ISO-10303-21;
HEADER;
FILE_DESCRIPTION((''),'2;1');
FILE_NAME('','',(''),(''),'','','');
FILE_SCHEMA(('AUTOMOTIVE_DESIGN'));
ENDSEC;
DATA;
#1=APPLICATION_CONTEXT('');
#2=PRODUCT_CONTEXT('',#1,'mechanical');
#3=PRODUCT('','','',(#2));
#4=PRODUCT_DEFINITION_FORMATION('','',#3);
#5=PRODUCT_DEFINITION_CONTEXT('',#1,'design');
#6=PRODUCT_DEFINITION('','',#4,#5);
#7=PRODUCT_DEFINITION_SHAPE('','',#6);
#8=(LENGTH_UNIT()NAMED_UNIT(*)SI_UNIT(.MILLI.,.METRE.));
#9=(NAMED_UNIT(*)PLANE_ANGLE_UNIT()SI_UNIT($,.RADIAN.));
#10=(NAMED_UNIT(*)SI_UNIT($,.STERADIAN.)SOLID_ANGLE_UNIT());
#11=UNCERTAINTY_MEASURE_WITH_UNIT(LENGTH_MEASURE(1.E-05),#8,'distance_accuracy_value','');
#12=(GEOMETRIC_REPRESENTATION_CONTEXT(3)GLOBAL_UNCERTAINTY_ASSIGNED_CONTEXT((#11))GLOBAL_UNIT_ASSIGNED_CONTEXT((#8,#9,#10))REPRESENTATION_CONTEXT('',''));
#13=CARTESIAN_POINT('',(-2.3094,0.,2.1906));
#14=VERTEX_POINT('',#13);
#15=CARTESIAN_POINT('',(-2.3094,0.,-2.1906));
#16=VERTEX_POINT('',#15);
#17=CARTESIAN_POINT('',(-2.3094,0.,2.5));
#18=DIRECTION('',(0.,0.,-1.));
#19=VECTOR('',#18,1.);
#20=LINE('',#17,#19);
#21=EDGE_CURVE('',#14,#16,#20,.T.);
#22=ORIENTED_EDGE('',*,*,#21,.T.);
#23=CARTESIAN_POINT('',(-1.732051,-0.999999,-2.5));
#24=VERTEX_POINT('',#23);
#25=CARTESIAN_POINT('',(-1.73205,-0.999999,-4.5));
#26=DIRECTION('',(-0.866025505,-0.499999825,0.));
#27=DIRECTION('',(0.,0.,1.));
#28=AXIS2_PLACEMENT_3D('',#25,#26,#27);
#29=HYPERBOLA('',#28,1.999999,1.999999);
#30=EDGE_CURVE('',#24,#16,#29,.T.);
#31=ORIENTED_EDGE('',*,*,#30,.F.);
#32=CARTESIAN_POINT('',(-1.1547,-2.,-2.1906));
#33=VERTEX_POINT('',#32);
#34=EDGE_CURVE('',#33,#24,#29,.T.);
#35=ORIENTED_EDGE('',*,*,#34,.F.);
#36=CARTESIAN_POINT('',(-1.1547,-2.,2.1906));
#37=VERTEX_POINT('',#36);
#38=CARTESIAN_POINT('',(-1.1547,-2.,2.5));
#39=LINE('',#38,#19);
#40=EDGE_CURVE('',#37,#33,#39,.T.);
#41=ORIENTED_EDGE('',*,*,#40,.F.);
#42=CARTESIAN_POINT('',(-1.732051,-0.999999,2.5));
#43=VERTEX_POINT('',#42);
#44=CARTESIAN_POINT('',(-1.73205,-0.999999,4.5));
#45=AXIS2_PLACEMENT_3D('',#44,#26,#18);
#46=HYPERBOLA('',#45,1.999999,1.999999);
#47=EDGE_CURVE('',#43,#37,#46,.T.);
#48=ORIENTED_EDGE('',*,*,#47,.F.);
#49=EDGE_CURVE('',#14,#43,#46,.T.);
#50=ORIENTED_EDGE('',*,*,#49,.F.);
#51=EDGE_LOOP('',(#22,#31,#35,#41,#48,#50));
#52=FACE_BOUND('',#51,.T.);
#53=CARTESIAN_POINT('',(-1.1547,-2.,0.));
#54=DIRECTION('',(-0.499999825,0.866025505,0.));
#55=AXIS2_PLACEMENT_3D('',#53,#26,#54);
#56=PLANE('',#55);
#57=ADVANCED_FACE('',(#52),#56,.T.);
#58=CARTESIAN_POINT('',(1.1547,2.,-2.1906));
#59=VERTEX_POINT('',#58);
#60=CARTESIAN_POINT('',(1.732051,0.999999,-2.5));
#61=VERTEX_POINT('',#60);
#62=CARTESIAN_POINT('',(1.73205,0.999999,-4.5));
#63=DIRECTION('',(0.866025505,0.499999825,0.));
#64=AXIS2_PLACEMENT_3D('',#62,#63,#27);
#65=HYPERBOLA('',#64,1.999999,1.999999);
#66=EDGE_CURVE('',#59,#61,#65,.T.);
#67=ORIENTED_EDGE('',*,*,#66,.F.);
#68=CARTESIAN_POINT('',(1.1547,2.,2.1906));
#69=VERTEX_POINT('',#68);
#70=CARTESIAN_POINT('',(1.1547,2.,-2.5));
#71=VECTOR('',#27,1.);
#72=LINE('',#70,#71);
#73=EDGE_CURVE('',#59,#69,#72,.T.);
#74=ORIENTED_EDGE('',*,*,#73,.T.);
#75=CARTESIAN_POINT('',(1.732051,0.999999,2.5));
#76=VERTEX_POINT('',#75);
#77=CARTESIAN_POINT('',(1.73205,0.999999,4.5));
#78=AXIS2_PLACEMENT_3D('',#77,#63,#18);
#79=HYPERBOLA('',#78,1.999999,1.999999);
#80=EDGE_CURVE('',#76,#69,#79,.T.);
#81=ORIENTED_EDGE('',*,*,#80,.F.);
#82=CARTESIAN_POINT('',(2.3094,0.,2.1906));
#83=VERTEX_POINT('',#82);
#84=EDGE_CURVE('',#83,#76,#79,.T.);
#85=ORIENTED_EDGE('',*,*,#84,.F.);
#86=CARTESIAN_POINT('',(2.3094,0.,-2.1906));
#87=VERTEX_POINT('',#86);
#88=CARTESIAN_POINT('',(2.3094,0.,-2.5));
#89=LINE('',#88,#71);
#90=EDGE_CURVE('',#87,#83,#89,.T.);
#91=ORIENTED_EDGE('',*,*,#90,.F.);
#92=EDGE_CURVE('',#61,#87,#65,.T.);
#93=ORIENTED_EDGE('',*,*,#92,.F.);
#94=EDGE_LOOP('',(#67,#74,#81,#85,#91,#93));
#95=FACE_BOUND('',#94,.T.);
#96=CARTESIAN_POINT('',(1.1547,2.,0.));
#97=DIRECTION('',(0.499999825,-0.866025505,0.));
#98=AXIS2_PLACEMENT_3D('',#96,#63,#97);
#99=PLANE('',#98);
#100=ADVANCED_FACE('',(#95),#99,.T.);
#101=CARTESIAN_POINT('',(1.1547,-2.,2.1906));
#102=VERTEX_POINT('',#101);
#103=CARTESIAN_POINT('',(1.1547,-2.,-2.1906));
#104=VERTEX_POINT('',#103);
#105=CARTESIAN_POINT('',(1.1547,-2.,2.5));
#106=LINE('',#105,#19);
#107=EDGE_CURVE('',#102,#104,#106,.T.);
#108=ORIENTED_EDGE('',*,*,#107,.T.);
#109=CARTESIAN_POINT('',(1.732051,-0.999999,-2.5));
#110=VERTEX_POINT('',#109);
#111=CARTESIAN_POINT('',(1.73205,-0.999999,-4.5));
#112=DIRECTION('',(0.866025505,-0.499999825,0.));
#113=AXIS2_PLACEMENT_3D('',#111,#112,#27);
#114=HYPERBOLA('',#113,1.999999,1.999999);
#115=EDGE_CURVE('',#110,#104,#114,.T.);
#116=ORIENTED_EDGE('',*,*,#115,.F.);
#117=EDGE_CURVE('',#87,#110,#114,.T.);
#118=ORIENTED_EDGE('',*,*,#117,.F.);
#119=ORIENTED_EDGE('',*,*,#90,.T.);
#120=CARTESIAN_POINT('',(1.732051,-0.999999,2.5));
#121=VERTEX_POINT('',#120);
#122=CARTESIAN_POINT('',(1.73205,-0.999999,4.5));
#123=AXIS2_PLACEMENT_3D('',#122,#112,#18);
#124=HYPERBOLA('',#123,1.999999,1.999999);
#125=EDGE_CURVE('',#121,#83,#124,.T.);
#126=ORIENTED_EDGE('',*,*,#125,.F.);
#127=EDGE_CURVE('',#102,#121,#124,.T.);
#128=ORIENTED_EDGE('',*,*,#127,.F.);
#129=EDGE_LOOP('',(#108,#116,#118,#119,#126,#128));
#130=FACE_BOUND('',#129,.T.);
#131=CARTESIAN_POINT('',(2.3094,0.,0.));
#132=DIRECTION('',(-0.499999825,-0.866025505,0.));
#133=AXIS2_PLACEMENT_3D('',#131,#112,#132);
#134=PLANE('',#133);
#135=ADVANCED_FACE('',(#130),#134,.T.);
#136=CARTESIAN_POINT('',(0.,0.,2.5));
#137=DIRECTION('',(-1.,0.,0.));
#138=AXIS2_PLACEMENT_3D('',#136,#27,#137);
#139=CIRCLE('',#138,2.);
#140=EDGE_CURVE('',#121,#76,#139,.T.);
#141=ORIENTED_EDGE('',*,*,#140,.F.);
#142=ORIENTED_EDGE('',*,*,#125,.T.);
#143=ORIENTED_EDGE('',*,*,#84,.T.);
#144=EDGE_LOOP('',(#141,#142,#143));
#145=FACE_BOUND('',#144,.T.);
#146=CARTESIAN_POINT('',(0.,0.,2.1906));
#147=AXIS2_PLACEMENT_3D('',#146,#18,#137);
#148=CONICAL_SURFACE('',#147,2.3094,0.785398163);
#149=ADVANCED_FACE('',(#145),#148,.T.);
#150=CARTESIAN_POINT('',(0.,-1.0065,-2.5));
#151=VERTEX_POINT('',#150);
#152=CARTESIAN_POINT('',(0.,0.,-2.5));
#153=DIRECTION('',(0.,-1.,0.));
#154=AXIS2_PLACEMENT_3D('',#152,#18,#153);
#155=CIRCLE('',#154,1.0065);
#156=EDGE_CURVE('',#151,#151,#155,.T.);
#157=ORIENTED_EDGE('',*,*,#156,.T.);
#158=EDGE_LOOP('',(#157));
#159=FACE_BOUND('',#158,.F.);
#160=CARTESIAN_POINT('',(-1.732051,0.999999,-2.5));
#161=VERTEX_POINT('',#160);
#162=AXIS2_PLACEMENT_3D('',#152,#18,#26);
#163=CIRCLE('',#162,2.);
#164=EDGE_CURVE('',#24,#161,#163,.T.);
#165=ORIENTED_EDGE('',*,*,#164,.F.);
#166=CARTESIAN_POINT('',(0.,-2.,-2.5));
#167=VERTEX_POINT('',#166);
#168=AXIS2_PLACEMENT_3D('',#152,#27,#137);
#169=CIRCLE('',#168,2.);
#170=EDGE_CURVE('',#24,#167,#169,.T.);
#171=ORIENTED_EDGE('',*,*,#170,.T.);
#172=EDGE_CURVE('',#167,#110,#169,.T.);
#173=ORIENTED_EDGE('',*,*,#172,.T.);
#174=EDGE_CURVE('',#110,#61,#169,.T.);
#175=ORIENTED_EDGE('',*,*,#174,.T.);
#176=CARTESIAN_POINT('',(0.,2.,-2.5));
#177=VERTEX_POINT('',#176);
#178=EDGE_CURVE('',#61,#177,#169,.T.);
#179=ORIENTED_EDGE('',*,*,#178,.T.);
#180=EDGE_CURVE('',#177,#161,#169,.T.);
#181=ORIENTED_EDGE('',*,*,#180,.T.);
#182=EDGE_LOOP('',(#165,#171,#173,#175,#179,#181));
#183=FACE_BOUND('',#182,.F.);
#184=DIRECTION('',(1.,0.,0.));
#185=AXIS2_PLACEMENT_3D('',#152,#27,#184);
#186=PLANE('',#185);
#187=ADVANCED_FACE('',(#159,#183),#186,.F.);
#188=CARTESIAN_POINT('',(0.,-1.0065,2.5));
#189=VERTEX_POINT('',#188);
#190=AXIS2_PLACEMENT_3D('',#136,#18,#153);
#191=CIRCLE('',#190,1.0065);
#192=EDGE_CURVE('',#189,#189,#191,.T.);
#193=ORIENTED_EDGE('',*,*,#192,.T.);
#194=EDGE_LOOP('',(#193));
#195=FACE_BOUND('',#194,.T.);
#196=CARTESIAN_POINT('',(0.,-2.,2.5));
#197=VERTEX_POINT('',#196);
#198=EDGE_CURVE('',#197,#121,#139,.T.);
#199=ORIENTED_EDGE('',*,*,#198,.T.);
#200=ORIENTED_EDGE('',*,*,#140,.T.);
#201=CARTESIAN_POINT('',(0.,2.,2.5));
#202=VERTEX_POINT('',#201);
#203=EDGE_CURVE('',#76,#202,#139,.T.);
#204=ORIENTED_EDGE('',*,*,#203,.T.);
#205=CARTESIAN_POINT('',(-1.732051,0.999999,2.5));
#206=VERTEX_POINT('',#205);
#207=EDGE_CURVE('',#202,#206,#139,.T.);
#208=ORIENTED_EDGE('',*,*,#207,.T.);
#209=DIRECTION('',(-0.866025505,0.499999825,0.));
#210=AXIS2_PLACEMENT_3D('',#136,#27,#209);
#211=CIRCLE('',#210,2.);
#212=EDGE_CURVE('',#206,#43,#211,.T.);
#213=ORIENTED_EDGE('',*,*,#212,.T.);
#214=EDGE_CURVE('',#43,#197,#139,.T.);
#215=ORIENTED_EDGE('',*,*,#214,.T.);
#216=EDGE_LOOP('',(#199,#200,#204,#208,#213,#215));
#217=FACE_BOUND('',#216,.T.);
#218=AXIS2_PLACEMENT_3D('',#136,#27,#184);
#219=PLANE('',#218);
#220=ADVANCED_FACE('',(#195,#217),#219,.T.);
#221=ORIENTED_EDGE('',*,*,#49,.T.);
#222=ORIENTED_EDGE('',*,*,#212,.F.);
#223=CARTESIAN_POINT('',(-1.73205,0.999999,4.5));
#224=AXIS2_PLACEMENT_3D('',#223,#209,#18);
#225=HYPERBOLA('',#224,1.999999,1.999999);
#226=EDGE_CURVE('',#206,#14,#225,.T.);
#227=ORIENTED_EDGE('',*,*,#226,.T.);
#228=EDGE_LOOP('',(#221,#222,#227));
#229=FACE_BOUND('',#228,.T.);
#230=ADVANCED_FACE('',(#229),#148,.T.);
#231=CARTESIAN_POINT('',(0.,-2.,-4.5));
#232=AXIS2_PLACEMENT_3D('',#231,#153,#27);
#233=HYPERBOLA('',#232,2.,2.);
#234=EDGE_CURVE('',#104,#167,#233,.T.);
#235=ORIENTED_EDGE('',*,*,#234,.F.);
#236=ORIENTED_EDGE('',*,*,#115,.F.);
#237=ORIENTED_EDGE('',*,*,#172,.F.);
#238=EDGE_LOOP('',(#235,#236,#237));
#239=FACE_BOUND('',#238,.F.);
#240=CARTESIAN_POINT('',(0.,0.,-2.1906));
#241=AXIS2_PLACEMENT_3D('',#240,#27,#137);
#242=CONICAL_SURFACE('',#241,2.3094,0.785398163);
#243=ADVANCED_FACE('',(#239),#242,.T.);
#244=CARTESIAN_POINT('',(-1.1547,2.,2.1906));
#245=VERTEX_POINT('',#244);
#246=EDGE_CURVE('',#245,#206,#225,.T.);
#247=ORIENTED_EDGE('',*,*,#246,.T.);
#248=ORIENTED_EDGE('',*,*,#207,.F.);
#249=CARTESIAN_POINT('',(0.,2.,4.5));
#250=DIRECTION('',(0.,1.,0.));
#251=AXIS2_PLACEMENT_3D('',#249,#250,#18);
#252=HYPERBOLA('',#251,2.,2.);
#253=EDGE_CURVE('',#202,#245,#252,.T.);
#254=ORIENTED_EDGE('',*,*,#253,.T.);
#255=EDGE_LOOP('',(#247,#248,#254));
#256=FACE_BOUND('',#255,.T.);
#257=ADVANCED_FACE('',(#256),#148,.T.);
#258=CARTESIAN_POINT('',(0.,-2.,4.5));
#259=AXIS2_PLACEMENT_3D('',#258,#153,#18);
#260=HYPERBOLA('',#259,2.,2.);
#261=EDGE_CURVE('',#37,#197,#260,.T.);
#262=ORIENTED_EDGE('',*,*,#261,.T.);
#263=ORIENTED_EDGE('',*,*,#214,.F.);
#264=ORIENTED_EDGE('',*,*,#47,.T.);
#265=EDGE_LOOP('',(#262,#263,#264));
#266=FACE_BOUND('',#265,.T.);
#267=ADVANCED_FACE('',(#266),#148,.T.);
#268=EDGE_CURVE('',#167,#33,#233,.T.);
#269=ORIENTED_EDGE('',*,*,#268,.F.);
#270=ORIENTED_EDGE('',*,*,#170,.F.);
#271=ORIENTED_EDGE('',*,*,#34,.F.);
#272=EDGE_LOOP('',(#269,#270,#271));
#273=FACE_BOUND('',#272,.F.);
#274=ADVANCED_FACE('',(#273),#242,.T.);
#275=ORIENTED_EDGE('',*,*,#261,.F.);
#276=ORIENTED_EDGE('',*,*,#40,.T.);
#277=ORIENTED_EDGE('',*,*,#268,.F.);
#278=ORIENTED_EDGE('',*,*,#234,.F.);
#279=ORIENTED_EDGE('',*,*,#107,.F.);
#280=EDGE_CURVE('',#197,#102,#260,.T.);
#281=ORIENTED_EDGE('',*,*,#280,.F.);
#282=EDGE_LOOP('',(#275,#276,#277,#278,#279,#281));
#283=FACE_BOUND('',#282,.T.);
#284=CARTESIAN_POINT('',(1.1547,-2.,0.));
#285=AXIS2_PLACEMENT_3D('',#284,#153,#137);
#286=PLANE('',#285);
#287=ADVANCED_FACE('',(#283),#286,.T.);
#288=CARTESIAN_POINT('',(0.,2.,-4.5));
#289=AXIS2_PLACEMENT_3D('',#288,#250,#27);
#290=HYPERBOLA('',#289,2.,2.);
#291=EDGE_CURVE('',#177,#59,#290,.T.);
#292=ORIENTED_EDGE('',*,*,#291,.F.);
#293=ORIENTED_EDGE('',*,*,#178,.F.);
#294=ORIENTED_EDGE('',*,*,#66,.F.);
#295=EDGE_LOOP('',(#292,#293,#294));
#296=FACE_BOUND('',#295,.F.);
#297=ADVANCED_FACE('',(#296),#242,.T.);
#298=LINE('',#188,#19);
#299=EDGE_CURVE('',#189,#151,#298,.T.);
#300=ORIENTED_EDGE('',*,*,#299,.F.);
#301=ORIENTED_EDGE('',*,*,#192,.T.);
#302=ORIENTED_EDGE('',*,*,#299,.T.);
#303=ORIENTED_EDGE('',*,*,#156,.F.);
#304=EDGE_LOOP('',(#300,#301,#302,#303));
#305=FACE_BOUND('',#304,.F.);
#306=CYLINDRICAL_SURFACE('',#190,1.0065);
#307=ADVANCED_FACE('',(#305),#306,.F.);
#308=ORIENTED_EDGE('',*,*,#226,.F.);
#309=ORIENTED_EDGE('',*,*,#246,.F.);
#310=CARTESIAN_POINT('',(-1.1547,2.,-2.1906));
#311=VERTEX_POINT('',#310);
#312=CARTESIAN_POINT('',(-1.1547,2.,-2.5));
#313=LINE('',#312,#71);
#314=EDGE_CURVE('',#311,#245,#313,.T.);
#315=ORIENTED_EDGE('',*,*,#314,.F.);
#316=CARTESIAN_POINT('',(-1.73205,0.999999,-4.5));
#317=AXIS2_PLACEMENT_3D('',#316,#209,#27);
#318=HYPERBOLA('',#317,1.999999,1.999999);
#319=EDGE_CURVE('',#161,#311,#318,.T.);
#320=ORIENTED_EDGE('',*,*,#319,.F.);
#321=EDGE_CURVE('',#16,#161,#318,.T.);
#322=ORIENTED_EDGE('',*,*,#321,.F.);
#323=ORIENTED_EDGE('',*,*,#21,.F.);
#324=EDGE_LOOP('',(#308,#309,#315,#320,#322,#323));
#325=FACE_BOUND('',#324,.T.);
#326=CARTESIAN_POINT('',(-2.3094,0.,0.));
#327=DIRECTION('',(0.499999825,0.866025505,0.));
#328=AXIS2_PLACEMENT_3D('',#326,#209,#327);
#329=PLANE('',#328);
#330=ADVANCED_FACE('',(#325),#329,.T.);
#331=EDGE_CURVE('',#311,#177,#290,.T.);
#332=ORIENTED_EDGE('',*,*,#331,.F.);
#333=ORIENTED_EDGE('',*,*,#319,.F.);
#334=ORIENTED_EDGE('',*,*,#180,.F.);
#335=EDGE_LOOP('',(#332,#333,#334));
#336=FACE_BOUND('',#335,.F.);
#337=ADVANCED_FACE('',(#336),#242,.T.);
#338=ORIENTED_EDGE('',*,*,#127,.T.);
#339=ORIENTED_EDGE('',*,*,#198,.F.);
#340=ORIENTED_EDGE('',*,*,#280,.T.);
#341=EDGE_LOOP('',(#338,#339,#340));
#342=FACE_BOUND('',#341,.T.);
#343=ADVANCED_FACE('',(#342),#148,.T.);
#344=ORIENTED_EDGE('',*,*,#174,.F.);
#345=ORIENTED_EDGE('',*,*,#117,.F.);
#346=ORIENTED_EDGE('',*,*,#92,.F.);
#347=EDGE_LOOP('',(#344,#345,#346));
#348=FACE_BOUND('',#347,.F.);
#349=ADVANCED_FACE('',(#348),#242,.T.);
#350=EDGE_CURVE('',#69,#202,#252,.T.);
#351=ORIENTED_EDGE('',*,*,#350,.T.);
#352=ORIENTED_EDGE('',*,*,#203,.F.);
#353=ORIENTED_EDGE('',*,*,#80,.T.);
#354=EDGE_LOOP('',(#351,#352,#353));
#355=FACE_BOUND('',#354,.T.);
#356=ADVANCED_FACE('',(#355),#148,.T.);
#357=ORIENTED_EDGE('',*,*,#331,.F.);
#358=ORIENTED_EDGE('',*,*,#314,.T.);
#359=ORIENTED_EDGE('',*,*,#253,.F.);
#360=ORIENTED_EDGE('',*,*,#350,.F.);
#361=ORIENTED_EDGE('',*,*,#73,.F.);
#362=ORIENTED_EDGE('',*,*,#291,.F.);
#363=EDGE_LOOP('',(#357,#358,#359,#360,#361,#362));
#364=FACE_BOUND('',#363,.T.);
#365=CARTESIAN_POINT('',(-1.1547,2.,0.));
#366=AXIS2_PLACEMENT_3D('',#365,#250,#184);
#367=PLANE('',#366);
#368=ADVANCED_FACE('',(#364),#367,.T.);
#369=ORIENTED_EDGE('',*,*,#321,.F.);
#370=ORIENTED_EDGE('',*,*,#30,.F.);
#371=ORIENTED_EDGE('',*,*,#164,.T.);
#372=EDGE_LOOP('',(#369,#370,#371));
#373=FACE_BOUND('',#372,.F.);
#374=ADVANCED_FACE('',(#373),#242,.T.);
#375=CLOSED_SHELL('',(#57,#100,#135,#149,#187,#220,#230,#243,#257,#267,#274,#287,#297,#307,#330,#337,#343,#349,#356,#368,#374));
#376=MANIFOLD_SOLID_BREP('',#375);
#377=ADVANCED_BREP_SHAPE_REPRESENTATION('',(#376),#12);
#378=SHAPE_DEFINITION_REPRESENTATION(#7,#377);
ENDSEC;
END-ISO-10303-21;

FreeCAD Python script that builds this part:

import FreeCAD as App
import Part
import Sketcher
from FreeCAD import Vector
Q = App.Units.Quantity


def add_polygon(sketch, points):
    """Adds a closed chain of lines whose ends are joined by coincident constraints."""
    first, n = sketch.GeometryCount, len(points)
    for a, b in zip(points, points[1:] + points[:1]):
        sketch.addGeometry(Part.LineSegment(App.Vector(*a, 0), App.Vector(*b, 0)), False)
    for i in range(n):
        sketch.addConstraint(Sketcher.Constraint("Coincident", first + i, 2, first + (i + 1) % n, 1))

doc = App.newDocument("Part")
body = doc.addObject("PartDesign::Body", "Body")

# Sketch on XY plane
sketch1 = body.newObject("Sketcher::SketchObject", "Sketch")
sketch1.AttachmentSupport = (doc.getObject("XY_Plane"), [""])
sketch1.MapMode = "FlatFace"
add_polygon(sketch1, [(1.1547, -2), (2.3094, 0), (1.1547, 2), (-1.1547, 2), (-2.3094, 0), (-1.1547, -2)])  # lines 0-5
sketch1.addConstraint([
    Sketcher.Constraint("Horizontal", 2),
    Sketcher.Constraint("Horizontal", 5),
    Sketcher.Constraint("Symmetric", 0, 2, 3, 2, -1, 1),
    Sketcher.Constraint("Symmetric", 1, 2, 4, 2, -1, 1),
    Sketcher.Constraint("PointOnObject", 0, 2, -1),
    Sketcher.Constraint("Parallel", 0, 3),
    Sketcher.Constraint("Vertical", 2, 2, 4, 2),
    Sketcher.Constraint("DistanceY", 4, 2, 2, 2, 4.0),
    Sketcher.Constraint("Angle", 0, Q("60 deg")),
    Sketcher.Constraint("DistanceX", 2, 2, 2, 1, 2.3094),
])
pad1 = body.newObject("PartDesign::Pad", "Pad")
pad1.Profile = sketch1
pad1.Length = 5
pad1.Midplane = True

# Sketch on XY plane
sketch2 = body.newObject("Sketcher::SketchObject", "Sketch001")
sketch2.AttachmentSupport = (doc.getObject("XY_Plane"), [""])
sketch2.MapMode = "FlatFace"
sketch2.AttachmentOffset = App.Placement(Vector(0, 0, 2.5), App.Rotation())
sketch2.addGeometry(Part.Circle(Vector(0, 0, 0), Vector(0, 0, 1), 1.0065), False)
sketch2.addConstraint([
    Sketcher.Constraint("Coincident", 0, 3, -1, 1),
    Sketcher.Constraint("Diameter", 0, 2.013),
])
doc.recompute()
hole = body.newObject("PartDesign::Hole", "Hole")
hole.Profile = sketch2
hole.ThreadType = "None"
hole.Diameter = 2.013
hole.DepthType = "ThroughAll"

# Sketch on XZ plane
sketch3 = body.newObject("Sketcher::SketchObject", "Sketch002")
sketch3.AttachmentSupport = (doc.getObject("XZ_Plane"), [""])
sketch3.MapMode = "FlatFace"
add_polygon(sketch3, [(-2.3094, 2.5), (-2, 2.5), (-2.3094, 2.1906)])  # lines 0-2
sketch3.addConstraint([
    Sketcher.Constraint("Horizontal", 0),
    Sketcher.Constraint("Vertical", 2),
    Sketcher.Constraint("Equal", 0, 2),
    Sketcher.Constraint("DistanceX", 0, 2, -1, 1, 2.0),
    Sketcher.Constraint("DistanceY", -1, 1, 0, 2, 2.5),
    Sketcher.Constraint("DistanceX", 0, 1, 0, 2, 0.3094),
])
groove = body.newObject("PartDesign::Groove", "Groove")
groove.Profile = sketch3
groove.ReferenceAxis = (sketch3, ["V_Axis"])
groove.Angle = 360
doc.recompute()

mirrored = body.newObject("PartDesign::Mirrored", "Mirrored")
mirrored.Originals = [groove]
mirrored.MirrorPlane = (doc.getObject("XY_Plane"), [""])
body.Tip = mirrored

doc.recompute()
